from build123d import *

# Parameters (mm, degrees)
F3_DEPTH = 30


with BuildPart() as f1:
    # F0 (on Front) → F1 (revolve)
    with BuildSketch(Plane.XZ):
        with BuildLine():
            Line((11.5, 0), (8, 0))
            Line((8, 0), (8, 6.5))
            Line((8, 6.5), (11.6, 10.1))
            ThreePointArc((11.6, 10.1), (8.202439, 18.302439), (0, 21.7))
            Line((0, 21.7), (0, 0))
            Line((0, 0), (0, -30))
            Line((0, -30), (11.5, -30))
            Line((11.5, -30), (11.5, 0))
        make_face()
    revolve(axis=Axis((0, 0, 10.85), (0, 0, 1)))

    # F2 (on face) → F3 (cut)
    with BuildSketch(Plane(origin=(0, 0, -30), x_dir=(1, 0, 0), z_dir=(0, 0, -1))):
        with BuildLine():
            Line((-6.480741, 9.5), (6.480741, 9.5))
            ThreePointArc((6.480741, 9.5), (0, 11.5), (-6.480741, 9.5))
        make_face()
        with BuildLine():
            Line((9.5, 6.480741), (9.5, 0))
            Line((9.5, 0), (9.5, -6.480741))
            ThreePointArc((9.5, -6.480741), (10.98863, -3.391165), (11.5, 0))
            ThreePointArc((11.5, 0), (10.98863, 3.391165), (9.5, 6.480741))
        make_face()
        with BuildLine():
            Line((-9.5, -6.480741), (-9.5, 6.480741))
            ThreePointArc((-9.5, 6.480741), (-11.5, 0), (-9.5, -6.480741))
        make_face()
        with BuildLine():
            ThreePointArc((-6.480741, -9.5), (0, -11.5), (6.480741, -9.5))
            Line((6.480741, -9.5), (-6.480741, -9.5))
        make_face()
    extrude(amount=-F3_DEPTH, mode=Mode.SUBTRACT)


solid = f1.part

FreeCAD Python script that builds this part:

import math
import FreeCAD as App
import Part
import Sketcher
from FreeCAD import Vector
Q = App.Units.Quantity

doc = App.newDocument("Part")
body = doc.addObject("PartDesign::Body", "Body")

# Sketch on XZ plane
sketch1 = body.newObject("Sketcher::SketchObject", "Sketch")
sketch1.AttachmentSupport = (doc.getObject("XZ_Plane"), [""])
sketch1.MapMode = "FlatFace"
sketch1.addGeometry([
    Part.LineSegment(Vector(11.5, 0, 0), Vector(8, 0, 0)),  # 0
    Part.LineSegment(Vector(8, 0, 0), Vector(8, 6.5, 0)),  # 1
    Part.LineSegment(Vector(8, 6.5, 0), Vector(11.6, 10.1, 0)),  # 2
    Part.ArcOfCircle(Part.Circle(Vector(0, 10.1, 0), Vector(0, 0, 1), 11.6), math.radians(0), math.radians(90)),  # 3
    Part.LineSegment(Vector(0, 21.7, 0), Vector(0, -30, 0)),  # 4
    Part.LineSegment(Vector(0, -30, 0), Vector(11.5, -30, 0)),  # 5
    Part.LineSegment(Vector(11.5, -30, 0), Vector(11.5, 0, 0)),  # 6
], False)
sketch1.addConstraint([
    Sketcher.Constraint("Coincident", 0, 2, 1, 1),
    Sketcher.Constraint("Coincident", 1, 2, 2, 1),
    Sketcher.Constraint("Coincident", 2, 2, 3, 1),
    Sketcher.Constraint("Coincident", 3, 2, 4, 1),
    Sketcher.Constraint("Coincident", 4, 2, 5, 1),
    Sketcher.Constraint("Coincident", 5, 2, 6, 1),
    Sketcher.Constraint("Coincident", 6, 2, 0, 1),
    Sketcher.Constraint("Horizontal", 0),
    Sketcher.Constraint("Vertical", 1),
    Sketcher.Constraint("Vertical", 4),
    Sketcher.Constraint("Horizontal", 5),
    Sketcher.Constraint("Vertical", 6),
    Sketcher.Constraint("PointOnObject", 3, 3, -2),
    Sketcher.Constraint("PointOnObject", 0, 2, -1),
    Sketcher.Constraint("PointOnObject", 3, 2, -2),
    Sketcher.Constraint("Horizontal", 3, 3, 2, 2),
    Sketcher.Constraint("Radius", 3, Q("11.599999 mm")),
    Sketcher.Constraint("DistanceY", 6, 1, 6, 2, Q("30 mm")),
    Sketcher.Constraint("Angle", 2, Q("45 deg")),
    Sketcher.Constraint("DistanceX", 0, 2, 0, 1, Q("3.5 mm")),
    Sketcher.Constraint("DistanceX", 5, 1, 5, 2, Q("11.5 mm")),
    Sketcher.Constraint("DistanceY", 1, 1, 1, 2, Q("6.5 mm")),
])
revolution = body.newObject("PartDesign::Revolution", "Revolution")
revolution.Profile = sketch1
revolution.ReferenceAxis = (sketch1, ["V_Axis"])
revolution.Angle = 360

# Sketch on XY plane
sketch2 = body.newObject("Sketcher::SketchObject", "Sketch001")
sketch2.AttachmentSupport = (doc.getObject("XY_Plane"), [""])
sketch2.MapMode = "FlatFace"
sketch2.AttachmentOffset = App.Placement(Vector(0, 0, -30), App.Rotation())
sketch2.addGeometry([
    Part.LineSegment(Vector(-6, -10, 0), Vector(6, -10, 0)),  # 0
    Part.ArcOfCircle(Part.Circle(Vector(0, 0, 0), Vector(0, 0, 1), 12), math.radians(-124), math.radians(-56)),  # 1
    Part.LineSegment(Vector(10, -6, 0), Vector(10, 6, 0)),  # 2
    Part.ArcOfCircle(Part.Circle(Vector(0, 0, 0), Vector(0, 0, 1), 12), math.radians(0), math.radians(34)),  # 3
    Part.ArcOfCircle(Part.Circle(Vector(0, 0, 0), Vector(0, 0, 1), 12), math.radians(-34), math.radians(0)),  # 4
    Part.LineSegment(Vector(-10, 6, 0), Vector(-10, -6, 0)),  # 5
    Part.ArcOfCircle(Part.Circle(Vector(0, 0, 0), Vector(0, 0, 1), 12), math.radians(146), math.radians(214)),  # 6
    Part.ArcOfCircle(Part.Circle(Vector(0, 0, 0), Vector(0, 0, 1), 12), math.radians(56), math.radians(124)),  # 7
    Part.LineSegment(Vector(6, 10, 0), Vector(-6, 10, 0)),  # 8
], False)
sketch2.addConstraint([
    Sketcher.Constraint("Coincident", 0, 1, 1, 1),
    Sketcher.Constraint("Coincident", 1, 2, 0, 2),
    Sketcher.Constraint("Coincident", 2, 2, 3, 2),
    Sketcher.Constraint("Tangent", 3, 1, 4, 2),
    Sketcher.Constraint("Coincident", 4, 1, 2, 1),
    Sketcher.Constraint("Coincident", 5, 1, 6, 1),
    Sketcher.Constraint("Coincident", 6, 2, 5, 2),
    Sketcher.Constraint("Coincident", 7, 1, 8, 1),
    Sketcher.Constraint("Coincident", 8, 2, 7, 2),
    Sketcher.Constraint("Horizontal", 0),
    Sketcher.Constraint("Vertical", 2),
    Sketcher.Constraint("Vertical", 5),
    Sketcher.Constraint("Horizontal", 8),
    Sketcher.Constraint("Coincident", 1, 3, -1, 1),
    Sketcher.Constraint("Coincident", 6, 3, -1, 1),
    Sketcher.Constraint("Coincident", 7, 3, -1, 1),
    Sketcher.Constraint("Equal", 3, 4),
    Sketcher.Constraint("Equal", 1, 6),
    Sketcher.Constraint("Equal", 6, 7),
    Sketcher.Constraint("Symmetric", 4, 1, 5, 1, -1, 1),
    Sketcher.Constraint("PointOnObject", 3, 1, -1),
    Sketcher.Constraint("Horizontal", 2, 2, 5, 1),
    Sketcher.Constraint("Vertical", 1, 2, 7, 1),
    Sketcher.Constraint("Equal", 8, 2),
    Sketcher.Constraint("Radius", 1, Q("11.500001 mm")),
    Sketcher.Constraint("DistanceX", 2, 2, 3, 1, Q("2 mm")),
    Sketcher.Constraint("DistanceY", 0, 1, -1, 1, Q("9.5 mm")),
])
pocket1 = body.newObject("PartDesign::Pocket", "Pocket")
pocket1.Profile = sketch2
pocket1.Length = 30
pocket1.Reversed = True

doc.recompute()
